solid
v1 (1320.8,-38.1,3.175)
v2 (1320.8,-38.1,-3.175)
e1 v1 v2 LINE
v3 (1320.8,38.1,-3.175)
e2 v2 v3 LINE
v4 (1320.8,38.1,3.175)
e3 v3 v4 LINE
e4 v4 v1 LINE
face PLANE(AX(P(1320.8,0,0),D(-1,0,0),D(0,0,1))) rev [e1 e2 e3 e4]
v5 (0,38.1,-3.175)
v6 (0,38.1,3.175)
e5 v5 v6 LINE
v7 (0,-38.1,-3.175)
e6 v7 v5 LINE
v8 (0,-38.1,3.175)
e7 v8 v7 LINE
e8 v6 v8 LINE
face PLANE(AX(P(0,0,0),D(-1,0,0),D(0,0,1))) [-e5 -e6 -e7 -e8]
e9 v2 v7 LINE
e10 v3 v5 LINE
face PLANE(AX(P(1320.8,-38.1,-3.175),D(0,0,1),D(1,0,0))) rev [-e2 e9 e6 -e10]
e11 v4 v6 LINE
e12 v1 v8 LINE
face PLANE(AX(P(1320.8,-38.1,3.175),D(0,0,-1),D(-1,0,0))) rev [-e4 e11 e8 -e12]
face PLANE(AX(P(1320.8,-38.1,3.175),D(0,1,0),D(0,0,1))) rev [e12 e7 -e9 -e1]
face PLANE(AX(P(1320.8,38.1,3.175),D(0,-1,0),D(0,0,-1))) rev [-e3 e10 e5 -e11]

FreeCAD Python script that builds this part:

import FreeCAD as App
import Part
import Sketcher
from FreeCAD import Vector
Q = App.Units.Quantity


def add_polygon(sketch, points):
    """Adds a closed chain of lines whose ends are joined by coincident constraints."""
    first, n = sketch.GeometryCount, len(points)
    for a, b in zip(points, points[1:] + points[:1]):
        sketch.addGeometry(Part.LineSegment(App.Vector(*a, 0), App.Vector(*b, 0)), False)
    for i in range(n):
        sketch.addConstraint(Sketcher.Constraint("Coincident", first + i, 2, first + (i + 1) % n, 1))

doc = App.newDocument("Part")
params = doc.addObject("Spreadsheet::Sheet", "Params")
for row, (alias, value) in enumerate([
    ("sketch1_width", "3 in"),
    ("sketch1_height", "0.25 in"),
    ("pad1_length", "52 in"),
], start=1):
    params.set(f"A{row}", alias)
    params.set(f"B{row}", "=" + value)
    params.setAlias(f"B{row}", alias)

body = doc.addObject("PartDesign::Body", "Body")

# Sketch on YZ plane
sketch1 = body.newObject("Sketcher::SketchObject", "Sketch")
sketch1.AttachmentSupport = (doc.getObject("YZ_Plane"), [""])
sketch1.MapMode = "FlatFace"
add_polygon(sketch1, [(38, 3), (-38, 3), (-38, -3), (38, -3)])  # lines 0-3
sketch1.addConstraint([
    Sketcher.Constraint("Horizontal", 0),
    Sketcher.Constraint("Vertical", 1),
    Sketcher.Constraint("Horizontal", 2),
    Sketcher.Constraint("Vertical", 3),
    Sketcher.Constraint("Symmetric", 0, 2, 2, 2, -1, 1),
    Sketcher.Constraint("DistanceX", 0, 2, 0, 1, Q("3 in")),
    Sketcher.Constraint("DistanceY", 1, 2, 1, 1, Q("0.25 in")),
])
sketch1.setExpression("Constraints[9]", "Params.sketch1_width")
sketch1.setExpression("Constraints[10]", "Params.sketch1_height")
pad1 = body.newObject("PartDesign::Pad", "Pad")
pad1.Profile = sketch1
pad1.setExpression("Length", "Params.pad1_length")

doc.recompute()
